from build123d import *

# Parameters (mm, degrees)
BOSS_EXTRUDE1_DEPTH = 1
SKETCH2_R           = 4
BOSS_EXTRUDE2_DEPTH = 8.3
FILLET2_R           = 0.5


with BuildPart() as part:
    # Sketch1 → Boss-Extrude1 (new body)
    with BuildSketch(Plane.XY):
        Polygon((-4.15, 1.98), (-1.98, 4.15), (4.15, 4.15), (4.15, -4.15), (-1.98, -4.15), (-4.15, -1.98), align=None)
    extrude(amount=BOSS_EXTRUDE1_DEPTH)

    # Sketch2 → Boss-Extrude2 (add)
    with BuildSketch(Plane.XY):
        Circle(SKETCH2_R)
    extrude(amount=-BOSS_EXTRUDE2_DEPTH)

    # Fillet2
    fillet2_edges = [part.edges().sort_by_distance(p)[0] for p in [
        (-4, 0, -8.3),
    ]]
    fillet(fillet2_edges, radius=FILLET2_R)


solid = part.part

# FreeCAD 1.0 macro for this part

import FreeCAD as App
import Part
import Sketcher

V = App.Vector
Q = App.Units.Quantity


def edges_at(feature, points):
    """Names of the edges that pass closest to the given points."""
    edges = feature.Shape.Edges
    near = lambda p: min(range(len(edges)), key=lambda i: edges[i].distToShape(Part.Vertex(*p))[0])
    return sorted({f"Edge{near(p) + 1}" for p in points})


def add_polygon(sketch, points):
    """Adds a closed chain of lines whose ends are joined by coincident constraints."""
    first, n = sketch.GeometryCount, len(points)
    for a, b in zip(points, points[1:] + points[:1]):
        sketch.addGeometry(Part.LineSegment(App.Vector(*a, 0), App.Vector(*b, 0)), False)
    for i in range(n):
        sketch.addConstraint(Sketcher.Constraint("Coincident", first + i, 2, first + (i + 1) % n, 1))

doc = App.newDocument("Part")
body = doc.addObject("PartDesign::Body", "Body")

# Sketch on XY plane
sketch1 = doc.addObject("Sketcher::SketchObject", "Sketch")
body.addObject(sketch1)
sketch1.AttachmentSupport = (doc.XY_Plane, [""])
sketch1.MapMode = "FlatFace"
add_polygon(sketch1, [(-1.98, 4.15), (-4.15, 1.98), (-4.15, -1.98), (-1.98, -4.15), (4.15, -4.15), (4.15, 4.15)])  # lines 0-5
sketch1.addConstraint([
    Sketcher.Constraint("Vertical", 1),
    Sketcher.Constraint("Horizontal", 3),
    Sketcher.Constraint("Vertical", 4),
    Sketcher.Constraint("Horizontal", 5),
    Sketcher.Constraint("Symmetric", 2, 2, 5, 2, -1),
    Sketcher.Constraint("Perpendicular", 0, 2),
    Sketcher.Constraint("Equal", 0, 2),
    Sketcher.Constraint("DistanceY", 4, 1, 4, 2, Q("8.3 mm")),
    Sketcher.Constraint("DistanceX", 3, 1, 3, 2, Q("6.13 mm")),
    Sketcher.Constraint("DistanceY", 1, 2, 1, 1, Q("3.96 mm")),
    Sketcher.Constraint("DistanceX", 0, 2, -1, 1, Q("4.15 mm")),
])
pad1 = doc.addObject("PartDesign::Pad", "Pad")
body.addObject(pad1)
pad1.Profile = sketch1
pad1.Length = 1

# Sketch on XY plane
sketch2 = doc.addObject("Sketcher::SketchObject", "Sketch001")
body.addObject(sketch2)
sketch2.AttachmentSupport = (doc.XY_Plane, [""])
sketch2.MapMode = "FlatFace"
sketch2.addGeometry(Part.Circle(V(0, 0, 0), V(0, 0, 1), 4), False)
sketch2.addConstraint([
    Sketcher.Constraint("Coincident", 0, 3, -1, 1),
    Sketcher.Constraint("Diameter", 0, Q("8 mm")),
])
pad2 = doc.addObject("PartDesign::Pad", "Pad001")
body.addObject(pad2)
pad2.Profile = sketch2
pad2.Length = 8.3
pad2.Reversed = True
doc.recompute()

fillet = doc.addObject("PartDesign::Fillet", "Fillet")
body.addObject(fillet)
fillet.Base = (pad2, edges_at(pad2, [(-4, 0, -8.3)]))
fillet.Radius = 0.5

doc.recompute()
